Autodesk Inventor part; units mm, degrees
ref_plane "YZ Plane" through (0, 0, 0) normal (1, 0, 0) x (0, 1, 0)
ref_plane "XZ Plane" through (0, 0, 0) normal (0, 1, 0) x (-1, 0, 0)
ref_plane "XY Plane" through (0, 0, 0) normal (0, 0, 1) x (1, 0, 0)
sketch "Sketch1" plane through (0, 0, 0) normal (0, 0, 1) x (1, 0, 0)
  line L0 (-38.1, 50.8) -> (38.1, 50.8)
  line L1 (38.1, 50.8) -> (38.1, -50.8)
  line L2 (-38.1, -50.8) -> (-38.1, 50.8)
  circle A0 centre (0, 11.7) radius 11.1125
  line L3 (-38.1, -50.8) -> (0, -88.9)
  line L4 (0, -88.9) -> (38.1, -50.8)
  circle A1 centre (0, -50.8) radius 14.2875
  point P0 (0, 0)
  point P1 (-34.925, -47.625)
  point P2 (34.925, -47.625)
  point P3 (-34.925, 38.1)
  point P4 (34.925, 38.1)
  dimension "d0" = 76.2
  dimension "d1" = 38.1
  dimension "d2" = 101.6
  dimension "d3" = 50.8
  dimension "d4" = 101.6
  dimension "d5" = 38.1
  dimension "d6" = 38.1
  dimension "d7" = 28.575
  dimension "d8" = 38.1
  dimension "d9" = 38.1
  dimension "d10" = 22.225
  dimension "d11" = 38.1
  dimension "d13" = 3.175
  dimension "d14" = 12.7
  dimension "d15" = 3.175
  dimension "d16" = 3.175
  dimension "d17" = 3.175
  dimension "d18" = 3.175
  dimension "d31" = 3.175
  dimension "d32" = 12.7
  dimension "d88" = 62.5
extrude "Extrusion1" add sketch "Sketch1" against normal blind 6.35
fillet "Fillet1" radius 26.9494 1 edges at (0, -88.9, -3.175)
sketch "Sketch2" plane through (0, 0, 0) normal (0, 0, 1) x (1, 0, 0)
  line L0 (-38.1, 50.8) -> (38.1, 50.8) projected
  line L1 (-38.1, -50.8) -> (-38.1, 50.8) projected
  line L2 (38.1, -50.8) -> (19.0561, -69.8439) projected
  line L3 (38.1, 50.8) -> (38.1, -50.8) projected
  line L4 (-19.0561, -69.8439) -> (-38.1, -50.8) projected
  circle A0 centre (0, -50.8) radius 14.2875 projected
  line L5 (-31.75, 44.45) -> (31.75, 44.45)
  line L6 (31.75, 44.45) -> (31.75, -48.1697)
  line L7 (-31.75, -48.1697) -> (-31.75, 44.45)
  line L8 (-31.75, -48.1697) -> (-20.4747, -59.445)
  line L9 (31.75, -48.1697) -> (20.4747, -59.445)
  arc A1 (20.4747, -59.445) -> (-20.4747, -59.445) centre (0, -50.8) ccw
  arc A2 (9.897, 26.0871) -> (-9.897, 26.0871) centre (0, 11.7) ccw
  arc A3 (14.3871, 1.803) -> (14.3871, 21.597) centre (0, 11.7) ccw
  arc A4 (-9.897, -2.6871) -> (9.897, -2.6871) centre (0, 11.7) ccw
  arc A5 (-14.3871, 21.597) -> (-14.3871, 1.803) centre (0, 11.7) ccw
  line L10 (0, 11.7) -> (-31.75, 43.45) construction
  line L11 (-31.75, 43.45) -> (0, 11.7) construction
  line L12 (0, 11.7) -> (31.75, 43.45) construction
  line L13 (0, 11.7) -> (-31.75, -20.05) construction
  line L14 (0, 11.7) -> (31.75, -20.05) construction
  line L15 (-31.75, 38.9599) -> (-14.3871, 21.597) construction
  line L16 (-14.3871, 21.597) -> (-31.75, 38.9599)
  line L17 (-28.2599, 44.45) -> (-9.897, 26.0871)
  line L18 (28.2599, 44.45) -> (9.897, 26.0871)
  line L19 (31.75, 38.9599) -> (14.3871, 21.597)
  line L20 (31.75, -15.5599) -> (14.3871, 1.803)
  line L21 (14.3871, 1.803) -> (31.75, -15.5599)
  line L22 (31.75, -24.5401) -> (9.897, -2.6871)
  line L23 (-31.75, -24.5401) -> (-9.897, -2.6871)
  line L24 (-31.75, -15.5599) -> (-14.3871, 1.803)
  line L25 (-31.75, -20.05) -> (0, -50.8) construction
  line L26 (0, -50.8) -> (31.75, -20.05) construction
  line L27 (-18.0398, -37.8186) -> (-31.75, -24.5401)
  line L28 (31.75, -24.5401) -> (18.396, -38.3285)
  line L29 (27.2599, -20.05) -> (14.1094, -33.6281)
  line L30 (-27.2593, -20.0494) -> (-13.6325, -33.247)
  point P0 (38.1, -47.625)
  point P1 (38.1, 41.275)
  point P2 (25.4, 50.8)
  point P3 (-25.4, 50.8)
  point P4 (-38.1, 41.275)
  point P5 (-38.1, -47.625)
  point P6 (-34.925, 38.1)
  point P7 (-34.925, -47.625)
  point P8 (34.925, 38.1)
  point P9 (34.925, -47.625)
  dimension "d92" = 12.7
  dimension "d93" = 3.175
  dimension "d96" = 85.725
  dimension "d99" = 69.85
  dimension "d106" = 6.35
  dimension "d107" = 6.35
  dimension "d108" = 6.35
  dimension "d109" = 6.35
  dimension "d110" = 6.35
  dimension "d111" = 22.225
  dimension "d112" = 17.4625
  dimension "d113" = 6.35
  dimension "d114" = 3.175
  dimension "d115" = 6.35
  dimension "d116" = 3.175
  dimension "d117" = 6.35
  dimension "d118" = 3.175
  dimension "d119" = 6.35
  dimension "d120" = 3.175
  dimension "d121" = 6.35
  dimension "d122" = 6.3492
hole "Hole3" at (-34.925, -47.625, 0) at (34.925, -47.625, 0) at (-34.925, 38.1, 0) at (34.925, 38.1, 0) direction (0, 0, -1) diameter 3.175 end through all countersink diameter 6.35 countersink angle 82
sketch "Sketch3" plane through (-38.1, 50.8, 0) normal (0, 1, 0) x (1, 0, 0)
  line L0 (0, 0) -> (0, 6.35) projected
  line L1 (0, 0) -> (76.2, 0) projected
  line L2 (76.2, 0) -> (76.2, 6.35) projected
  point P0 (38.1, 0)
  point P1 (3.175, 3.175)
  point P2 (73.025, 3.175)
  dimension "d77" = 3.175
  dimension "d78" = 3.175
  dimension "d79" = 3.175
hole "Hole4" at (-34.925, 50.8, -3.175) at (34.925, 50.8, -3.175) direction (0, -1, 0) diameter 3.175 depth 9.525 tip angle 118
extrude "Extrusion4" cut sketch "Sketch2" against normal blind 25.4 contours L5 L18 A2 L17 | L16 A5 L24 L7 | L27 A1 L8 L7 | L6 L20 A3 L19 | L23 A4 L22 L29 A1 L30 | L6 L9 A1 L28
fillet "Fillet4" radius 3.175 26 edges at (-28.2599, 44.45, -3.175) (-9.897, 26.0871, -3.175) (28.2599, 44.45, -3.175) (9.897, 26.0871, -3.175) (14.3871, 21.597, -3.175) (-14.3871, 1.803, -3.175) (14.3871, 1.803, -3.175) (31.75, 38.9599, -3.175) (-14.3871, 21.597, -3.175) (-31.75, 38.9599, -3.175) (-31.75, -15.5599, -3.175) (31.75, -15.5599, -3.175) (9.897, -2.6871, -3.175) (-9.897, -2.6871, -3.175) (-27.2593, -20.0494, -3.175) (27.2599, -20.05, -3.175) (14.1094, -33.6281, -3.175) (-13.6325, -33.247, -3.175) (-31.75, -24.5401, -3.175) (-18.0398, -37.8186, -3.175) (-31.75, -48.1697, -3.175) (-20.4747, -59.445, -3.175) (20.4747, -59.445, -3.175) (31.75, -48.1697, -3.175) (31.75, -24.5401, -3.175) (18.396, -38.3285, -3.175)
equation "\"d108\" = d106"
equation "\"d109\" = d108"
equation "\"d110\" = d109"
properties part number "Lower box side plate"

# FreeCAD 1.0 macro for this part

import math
import FreeCAD as App
import Part
import Sketcher
from FreeCAD import Vector
Q = App.Units.Quantity


def edges_at(feature, points):
    """Names of the edges that pass closest to the given points."""
    edges = feature.Shape.Edges
    near = lambda p: min(range(len(edges)), key=lambda i: edges[i].distToShape(Part.Vertex(*p))[0])
    return sorted({f"Edge{near(p) + 1}" for p in points})

doc = App.newDocument("Part")
params = doc.addObject("Spreadsheet::Sheet", "Params")
for row, (alias, value) in enumerate([
    ("sketch1_width", "3 in"),
    ("sketch1_height", "4 in"),
    ("sketch1_diameter", "1.125 in"),
    ("sketch1_diameter2", "0.875 in"),
    ("pad1_length", "0.25 in"),
    ("fillet_radius", "1.061 in"),
    ("sketch2_diameter", "0.125 in"),
    ("hole_diameter", "0.125 in"),
    ("hole_csink_diameter", "0.25 in"),
    ("sketch3_diameter", "0.125 in"),
    ("hole2_diameter", "0.125 in"),
    ("hole2_depth", "0.375 in"),
    ("sketch4_radius", "0.6875 in"),
    ("sketch4_radius2", "0.6875 in"),
    ("sketch4_radius3", "0.875 in"),
    ("sketch4_radius4", "0.6875 in"),
    ("sketch4_radius5", "0.875 in"),
    ("pocket1_length", "1 in"),
    ("fillet2_radius", "0.125 in"),
], start=1):
    params.set(f"A{row}", alias)
    params.set(f"B{row}", "=" + value)
    params.setAlias(f"B{row}", alias)

body = doc.addObject("PartDesign::Body", "Body")

# Sketch on XY plane
sketch1 = doc.addObject("Sketcher::SketchObject", "Sketch")
body.addObject(sketch1)
sketch1.AttachmentSupport = (doc.XY_Plane, [""])
sketch1.MapMode = "FlatFace"
sketch1.addGeometry(Part.LineSegment(Vector(38, 51, 0), Vector(-38, 51, 0)), False)
sketch1.addGeometry(Part.LineSegment(Vector(-38, 51, 0), Vector(-38, -51, 0)), False)
sketch1.addGeometry(Part.LineSegment(Vector(-38, -51, 0), Vector(0, -89, 0)), False)
sketch1.addGeometry(Part.LineSegment(Vector(0, -89, 0), Vector(38, -51, 0)), False)
sketch1.addGeometry(Part.LineSegment(Vector(38, -51, 0), Vector(38, 51, 0)), False)
sketch1.addGeometry(Part.Circle(Vector(0, -51, 0), Vector(0, 0, 1), 14), False)
sketch1.addGeometry(Part.Circle(Vector(0, 12, 0), Vector(0, 0, 1), 11), False)
sketch1.addConstraint(Sketcher.Constraint("Coincident", 0, 2, 1, 1))
sketch1.addConstraint(Sketcher.Constraint("Coincident", 1, 2, 2, 1))
sketch1.addConstraint(Sketcher.Constraint("Coincident", 2, 2, 3, 1))
sketch1.addConstraint(Sketcher.Constraint("Coincident", 3, 2, 4, 1))
sketch1.addConstraint(Sketcher.Constraint("Coincident", 4, 2, 0, 1))
sketch1.addConstraint(Sketcher.Constraint("Horizontal", 0))
sketch1.addConstraint(Sketcher.Constraint("Vertical", 1))
sketch1.addConstraint(Sketcher.Constraint("Vertical", 4))
sketch1.addConstraint(Sketcher.Constraint("Symmetric", 0, 2, 3, 2, -1, 1))
sketch1.addConstraint(Sketcher.Constraint("PointOnObject", 5, 3, -2))
sketch1.addConstraint(Sketcher.Constraint("PointOnObject", 6, 3, -2))
sketch1.addConstraint(Sketcher.Constraint("PointOnObject", 2, 2, -2))
sketch1.addConstraint(Sketcher.Constraint("Perpendicular", 2, 3))
sketch1.addConstraint(Sketcher.Constraint("Horizontal", 5, 3, 1, 2))
sketch1.addConstraint(Sketcher.Constraint("Horizontal", 1, 2, 3, 2))
sketch1.addConstraint(Sketcher.Constraint("DistanceX", 0, 2, 0, 1, Q("3 in")))
sketch1.addConstraint(Sketcher.Constraint("DistanceY", 1, 2, 1, 1, Q("4 in")))
sketch1.addConstraint(Sketcher.Constraint("Diameter", 5, Q("1.125 in")))
sketch1.addConstraint(Sketcher.Constraint("Diameter", 6, Q("0.875 in")))
sketch1.addConstraint(Sketcher.Constraint("DistanceY", 5, 3, 6, 3, 62.5))
sketch1.setExpression("Constraints[15]", "Params.sketch1_width")
sketch1.setExpression("Constraints[16]", "Params.sketch1_height")
sketch1.setExpression("Constraints[17]", "Params.sketch1_diameter")
sketch1.setExpression("Constraints[18]", "Params.sketch1_diameter2")
pad1 = doc.addObject("PartDesign::Pad", "Pad")
body.addObject(pad1)
pad1.Profile = sketch1
pad1.setExpression("Length", "Params.pad1_length")
pad1.Reversed = True
doc.recompute()

fillet = doc.addObject("PartDesign::Fillet", "Fillet")
body.addObject(fillet)
fillet.Base = (pad1, edges_at(pad1, [(0, -88.9, -3.175)]))
fillet.setExpression("Radius", "Params.fillet_radius")

# Sketch on XY plane
sketch2 = doc.addObject("Sketcher::SketchObject", "Sketch001")
body.addObject(sketch2)
sketch2.AttachmentSupport = (doc.XY_Plane, [""])
sketch2.MapMode = "FlatFace"
sketch2.addGeometry(Part.Circle(Vector(-34.9, -47.6, 0), Vector(0, 0, 1), 1.6), False)
sketch2.addGeometry(Part.Circle(Vector(34.9, -47.6, 0), Vector(0, 0, 1), 1.6), False)
sketch2.addGeometry(Part.Circle(Vector(-34.9, 38.1, 0), Vector(0, 0, 1), 1.6), False)
sketch2.addGeometry(Part.Circle(Vector(34.9, 38.1, 0), Vector(0, 0, 1), 1.6), False)
sketch2.addConstraint(Sketcher.Constraint("Equal", 0, 1))
sketch2.addConstraint(Sketcher.Constraint("Equal", 1, 2))
sketch2.addConstraint(Sketcher.Constraint("Equal", 2, 3))
sketch2.addConstraint(Sketcher.Constraint("Symmetric", 0, 3, 1, 3, -2))
sketch2.addConstraint(Sketcher.Constraint("Symmetric", 2, 3, 3, 3, -2))
sketch2.addConstraint(Sketcher.Constraint("Vertical", 0, 3, 2, 3))
sketch2.addConstraint(Sketcher.Constraint("Diameter", 0, Q("0.125 in")))
sketch2.addConstraint(Sketcher.Constraint("DistanceY", -1, 1, 2, 3, Q("1.5 in")))
sketch2.addConstraint(Sketcher.Constraint("DistanceX", 0, 3, 1, 3, Q("2.75 in")))
sketch2.addConstraint(Sketcher.Constraint("DistanceY", 0, 3, -1, 1, Q("1.875 in")))
sketch2.setExpression("Constraints[6]", "Params.sketch2_diameter")
doc.recompute()
hole = doc.addObject("PartDesign::Hole", "Hole")
body.addObject(hole)
hole.Profile = sketch2
hole.ThreadType = "None"
hole.setExpression("Diameter", "Params.hole_diameter")
hole.DepthType = "ThroughAll"
hole.HoleCutType = "Countersink"
hole.setExpression("HoleCutDiameter", "Params.hole_csink_diameter")
hole.HoleCutCountersinkAngle = 82

# Sketch on XZ plane
sketch3 = doc.addObject("Sketcher::SketchObject", "Sketch002")
body.addObject(sketch3)
sketch3.AttachmentSupport = (doc.XZ_Plane, [""])
sketch3.MapMode = "FlatFace"
sketch3.AttachmentOffset = App.Placement(Vector(0, 0, -2 * 25.4), App.Rotation())
sketch3.addGeometry(Part.Circle(Vector(-34.9, -3.2, 0), Vector(0, 0, 1), 1.6), False)
sketch3.addGeometry(Part.Circle(Vector(34.9, -3.2, 0), Vector(0, 0, 1), 1.6), False)
sketch3.addConstraint(Sketcher.Constraint("Equal", 0, 1))
sketch3.addConstraint(Sketcher.Constraint("Symmetric", 0, 3, 1, 3, -2))
sketch3.addConstraint(Sketcher.Constraint("Diameter", 0, Q("0.125 in")))
sketch3.addConstraint(Sketcher.Constraint("DistanceX", 0, 3, 1, 3, Q("2.75 in")))
sketch3.addConstraint(Sketcher.Constraint("DistanceY", 0, 3, -1, 1, Q("0.125 in")))
sketch3.setExpression("Constraints[2]", "Params.sketch3_diameter")
doc.recompute()
hole2 = doc.addObject("PartDesign::Hole", "Hole001")
body.addObject(hole2)
hole2.Profile = sketch3
hole2.ThreadType = "None"
hole2.setExpression("Diameter", "Params.hole2_diameter")
hole2.DepthType = "Dimension"
hole2.setExpression("Depth", "Params.hole2_depth")
hole2.DrillPoint = "Angled"
hole2.DrillPointAngle = 118
hole2.Reversed = True

# Sketch on XY plane
sketch4 = doc.addObject("Sketcher::SketchObject", "Sketch003")
body.addObject(sketch4)
sketch4.AttachmentSupport = (doc.XY_Plane, [""])
sketch4.MapMode = "FlatFace"
sketch4.addGeometry(Part.LineSegment(Vector(28.2599, 44.45, 0), Vector(-28.2599, 44.45, 0)), False)
sketch4.addGeometry(Part.LineSegment(Vector(-28.2599, 44.45, 0), Vector(-9.897, 26.0871, 0)), False)
sketch4.addGeometry(Part.ArcOfCircle(Part.Circle(Vector(0, 11.7, 0), Vector(0, 0, 1), 17.46251), math.radians(55.475609), math.radians(124.524391)), False)
sketch4.addGeometry(Part.LineSegment(Vector(9.897, 26.0871, 0), Vector(28.2599, 44.45, 0)), False)
sketch4.addGeometry(Part.LineSegment(Vector(-14.3871, 21.597, 0), Vector(-31.75, 38.9599, 0)), False)
sketch4.addGeometry(Part.LineSegment(Vector(-31.75, 38.9599, 0), Vector(-31.75, -15.5599, 0)), False)
sketch4.addGeometry(Part.LineSegment(Vector(-31.75, -15.5599, 0), Vector(-14.3871, 1.803, 0)), False)
sketch4.addGeometry(Part.ArcOfCircle(Part.Circle(Vector(0, 11.7, 0), Vector(0, 0, 1), 17.46251), math.radians(145.475609), math.radians(214.524391)), False)
sketch4.addGeometry(Part.LineSegment(Vector(-18.0398, -37.8186, 0), Vector(-31.75, -24.5401, 0)), False)
sketch4.addGeometry(Part.LineSegment(Vector(-31.75, -24.5401, 0), Vector(-31.75, -48.1697, 0)), False)
sketch4.addGeometry(Part.LineSegment(Vector(-31.75, -48.1697, 0), Vector(-20.4747, -59.445, 0)), False)
sketch4.addGeometry(Part.ArcOfCircle(Part.Circle(Vector(0, -50.8, 0), Vector(0, 0, 1), 22.224972), math.radians(144.261293), math.radians(202.890852)), False)
sketch4.addGeometry(Part.LineSegment(Vector(31.75, -15.5599, 0), Vector(31.75, 38.9599, 0)), False)
sketch4.addGeometry(Part.LineSegment(Vector(31.75, 38.9599, 0), Vector(14.3871, 21.597, 0)), False)
sketch4.addGeometry(Part.ArcOfCircle(Part.Circle(Vector(0, 11.7, 0), Vector(0, 0, 1), 17.46251), math.radians(-34.524391), math.radians(34.524391)), False)
sketch4.addGeometry(Part.LineSegment(Vector(14.3871, 1.803, 0), Vector(31.75, -15.5599, 0)), False)
sketch4.addGeometry(Part.LineSegment(Vector(-9.897, -2.6871, 0), Vector(-27.2593, -20.0494, 0)), False)
sketch4.addGeometry(Part.LineSegment(Vector(-27.2593, -20.0494, 0), Vector(-13.6325, -33.247, 0)), False)
sketch4.addGeometry(Part.ArcOfCircle(Part.Circle(Vector(0, -50.8, 0), Vector(0, 0, 1), 22.224972), math.radians(50.591549), math.radians(127.834624)), False)
sketch4.addGeometry(Part.LineSegment(Vector(14.1094, -33.6281, 0), Vector(27.2599, -20.05, 0)), False)
sketch4.addGeometry(Part.LineSegment(Vector(27.2599, -20.05, 0), Vector(9.897, -2.6871, 0)), False)
sketch4.addGeometry(Part.ArcOfCircle(Part.Circle(Vector(0, 11.7, 0), Vector(0, 0, 1), 17.46251), math.radians(-124.524391), math.radians(-55.475609)), False)
sketch4.addGeometry(Part.LineSegment(Vector(31.75, -48.1697, 0), Vector(31.75, -24.5401, 0)), False)
sketch4.addGeometry(Part.LineSegment(Vector(31.75, -24.5401, 0), Vector(18.396, -38.3285, 0)), False)
sketch4.addGeometry(Part.ArcOfCircle(Part.Circle(Vector(0, -50.8, 0), Vector(0, 0, 1), 22.224972), math.radians(-22.890852), math.radians(34.135162)), False)
sketch4.addGeometry(Part.LineSegment(Vector(20.4747, -59.445, 0), Vector(31.75, -48.1697, 0)), False)
sketch4.addConstraint(Sketcher.Constraint("Coincident", 0, 2, 1, 1))
sketch4.addConstraint(Sketcher.Constraint("Coincident", 1, 2, 2, 2))
sketch4.addConstraint(Sketcher.Constraint("Coincident", 2, 1, 3, 1))
sketch4.addConstraint(Sketcher.Constraint("Coincident", 3, 2, 0, 1))
sketch4.addConstraint(Sketcher.Constraint("Coincident", 4, 2, 5, 1))
sketch4.addConstraint(Sketcher.Constraint("Coincident", 5, 2, 6, 1))
sketch4.addConstraint(Sketcher.Constraint("Coincident", 6, 2, 7, 2))
sketch4.addConstraint(Sketcher.Constraint("Coincident", 7, 1, 4, 1))
sketch4.addConstraint(Sketcher.Constraint("Coincident", 8, 2, 9, 1))
sketch4.addConstraint(Sketcher.Constraint("Coincident", 9, 2, 10, 1))
sketch4.addConstraint(Sketcher.Constraint("Coincident", 10, 2, 11, 2))
sketch4.addConstraint(Sketcher.Constraint("Coincident", 11, 1, 8, 1))
sketch4.addConstraint(Sketcher.Constraint("Coincident", 12, 2, 13, 1))
sketch4.addConstraint(Sketcher.Constraint("Coincident", 13, 2, 14, 2))
sketch4.addConstraint(Sketcher.Constraint("Coincident", 14, 1, 15, 1))
sketch4.addConstraint(Sketcher.Constraint("Coincident", 15, 2, 12, 1))
sketch4.addConstraint(Sketcher.Constraint("Coincident", 16, 2, 17, 1))
sketch4.addConstraint(Sketcher.Constraint("Coincident", 17, 2, 18, 2))
sketch4.addConstraint(Sketcher.Constraint("Coincident", 18, 1, 19, 1))
sketch4.addConstraint(Sketcher.Constraint("Coincident", 19, 2, 20, 1))
sketch4.addConstraint(Sketcher.Constraint("Coincident", 20, 2, 21, 2))
sketch4.addConstraint(Sketcher.Constraint("Coincident", 21, 1, 16, 1))
sketch4.addConstraint(Sketcher.Constraint("Coincident", 22, 2, 23, 1))
sketch4.addConstraint(Sketcher.Constraint("Coincident", 23, 2, 24, 2))
sketch4.addConstraint(Sketcher.Constraint("Coincident", 24, 1, 25, 1))
sketch4.addConstraint(Sketcher.Constraint("Coincident", 25, 2, 22, 1))
sketch4.addConstraint(Sketcher.Constraint("Horizontal", 0))
sketch4.addConstraint(Sketcher.Constraint("Vertical", 5))
sketch4.addConstraint(Sketcher.Constraint("Vertical", 9))
sketch4.addConstraint(Sketcher.Constraint("Vertical", 12))
sketch4.addConstraint(Sketcher.Constraint("Vertical", 22))
sketch4.addConstraint(Sketcher.Constraint("Coincident", 7, 3, 2, 3))
sketch4.addConstraint(Sketcher.Constraint("Coincident", 14, 3, 2, 3))
sketch4.addConstraint(Sketcher.Constraint("Coincident", 18, 3, 11, 3))
sketch4.addConstraint(Sketcher.Constraint("Coincident", 21, 3, 2, 3))
sketch4.addConstraint(Sketcher.Constraint("Coincident", 24, 3, 11, 3))
sketch4.addConstraint(Sketcher.Constraint("PointOnObject", 2, 3, -2))
sketch4.addConstraint(Sketcher.Constraint("PointOnObject", 11, 3, -2))
sketch4.addConstraint(Sketcher.Constraint("Radius", 2, Q("0.6875 in")))
sketch4.addConstraint(Sketcher.Constraint("Radius", 7, Q("0.6875 in")))
sketch4.addConstraint(Sketcher.Constraint("Radius", 11, Q("0.875 in")))
sketch4.addConstraint(Sketcher.Constraint("Radius", 14, Q("0.6875 in")))
sketch4.addConstraint(Sketcher.Constraint("Radius", 18, Q("0.875 in")))
sketch4.addConstraint(Sketcher.Constraint("Radius", 21, Q("0.6875 in")))
sketch4.addConstraint(Sketcher.Constraint("Radius", 24, Q("0.875 in")))
sketch4.addConstraint(Sketcher.Constraint("DistanceY", 11, 3, -1, 1, Q("2 in")))
sketch4.addConstraint(Sketcher.Constraint("DistanceY", -1, 1, 0, 2, Q("1.75 in")))
sketch4.addConstraint(Sketcher.Constraint("DistanceX", 4, 2, -1, 1, Q("1.25 in")))
sketch4.addConstraint(Sketcher.Constraint("DistanceX", 8, 2, -1, 1, Q("1.25 in")))
sketch4.addConstraint(Sketcher.Constraint("DistanceX", -1, 1, 12, 2, Q("1.25 in")))
sketch4.addConstraint(Sketcher.Constraint("DistanceX", -1, 1, 22, 2, Q("1.25 in")))
sketch4.addConstraint(Sketcher.Constraint("DistanceX", 0, 2, 0, 1, Q("2.2252 in")))
sketch4.addConstraint(Sketcher.Constraint("DistanceY", 9, 2, 9, 1, Q("0.9303 in")))
sketch4.addConstraint(Sketcher.Constraint("DistanceY", 22, 1, 22, 2, Q("0.9303 in")))
sketch4.addConstraint(Sketcher.Constraint("DistanceY", 23, 2, -1, 1, Q("1.509 in")))
sketch4.addConstraint(Sketcher.Constraint("DistanceY", 18, 1, 17, 2, Q("0.015 in")))
sketch4.addConstraint(Sketcher.Constraint("Distance", 1, Q("1.0224 in")))
sketch4.addConstraint(Sketcher.Constraint("Distance", 3, Q("1.0224 in")))
sketch4.addConstraint(Sketcher.Constraint("Distance", 16, Q("0.9667 in")))
sketch4.addConstraint(Sketcher.Constraint("Distance", 19, Q("0.7442 in")))
sketch4.addConstraint(Sketcher.Constraint("Distance", 23, Q("0.7557 in")))
sketch4.addConstraint(Sketcher.Constraint("DistanceY", 5, 2, 5, 1, 54.5198))
sketch4.addConstraint(Sketcher.Constraint("DistanceY", 12, 1, 12, 2, 54.5198))
sketch4.addConstraint(Sketcher.Constraint("DistanceX", 0, 2, -1, 1, Q("1.1126 in")))
sketch4.addConstraint(Sketcher.Constraint("DistanceY", 5, 2, -1, 1, Q("0.6126 in")))
sketch4.addConstraint(Sketcher.Constraint("DistanceX", 10, 2, -1, 1, Q("0.8061 in")))
sketch4.addConstraint(Sketcher.Constraint("DistanceY", 15, 2, -1, 1, Q("0.6126 in")))
sketch4.addConstraint(Sketcher.Constraint("DistanceX", 16, 2, -1, 1, Q("1.0732 in")))
sketch4.addConstraint(Sketcher.Constraint("DistanceX", -1, 1, 18, 1, Q("0.5555 in")))
sketch4.addConstraint(Sketcher.Constraint("DistanceY", 20, 2, -1, 1, Q("0.1058 in")))
sketch4.addConstraint(Sketcher.Constraint("DistanceY", 21, 1, -1, 1, Q("0.1058 in")))
sketch4.addConstraint(Sketcher.Constraint("DistanceX", -1, 1, 24, 1, Q("0.8061 in")))
sketch4.addConstraint(Sketcher.Constraint("DistanceX", 1, 2, 2, 1, Q("0.7793 in")))
sketch4.addConstraint(Sketcher.Constraint("DistanceY", 10, 2, 9, 2, Q("0.4439 in")))
sketch4.addConstraint(Sketcher.Constraint("DistanceY", 14, 1, 13, 2, Q("0.7793 in")))
sketch4.addConstraint(Sketcher.Constraint("DistanceX", 14, 1, 19, 2, Q("0.5068 in")))
sketch4.addConstraint(Sketcher.Constraint("Distance", 4, 24.5548))
sketch4.addConstraint(Sketcher.Constraint("Distance", 6, 24.5548))
sketch4.addConstraint(Sketcher.Constraint("Distance", 8, 19.0863))
sketch4.addConstraint(Sketcher.Constraint("Distance", 13, 24.5548))
sketch4.setExpression("Constraints[38]", "Params.sketch4_radius")
sketch4.setExpression("Constraints[39]", "Params.sketch4_radius2")
sketch4.setExpression("Constraints[40]", "Params.sketch4_radius3")
sketch4.setExpression("Constraints[41]", "Params.sketch4_radius4")
sketch4.setExpression("Constraints[42]", "Params.sketch4_radius5")
pocket1 = doc.addObject("PartDesign::Pocket", "Pocket")
body.addObject(pocket1)
pocket1.Profile = sketch4
pocket1.setExpression("Length", "Params.pocket1_length")
doc.recompute()

fillet2 = doc.addObject("PartDesign::Fillet", "Fillet001")
body.addObject(fillet2)
fillet2.Base = (pocket1, edges_at(pocket1, [
    (-28.26, 44.45, -3.175),
    (-9.897, 26.087, -3.175),
    (28.26, 44.45, -3.175),
    (9.897, 26.087, -3.175),
    (14.387, 21.597, -3.175),
    (-14.387, 1.803, -3.175),
    (14.387, 1.803, -3.175),
    (31.75, 38.96, -3.175),
    (-14.387, 21.597, -3.175),
    (-31.75, 38.96, -3.175),
    (-31.75, -15.56, -3.175),
    (31.75, -15.56, -3.175),
    (9.897, -2.687, -3.175),
    (-9.897, -2.687, -3.175),
    (-27.259, -20.049, -3.175),
    (27.26, -20.05, -3.175),
    (14.109, -33.628, -3.175),
    (-13.633, -33.247, -3.175),
    (-31.75, -24.54, -3.175),
    (-18.04, -37.819, -3.175),
    (-31.75, -48.17, -3.175),
    (-20.475, -59.445, -3.175),
    (20.475, -59.445, -3.175),
    (31.75, -48.17, -3.175),
    (31.75, -24.54, -3.175),
    (18.396, -38.328, -3.175),
]))
fillet2.setExpression("Radius", "Params.fillet2_radius")

doc.recompute()
